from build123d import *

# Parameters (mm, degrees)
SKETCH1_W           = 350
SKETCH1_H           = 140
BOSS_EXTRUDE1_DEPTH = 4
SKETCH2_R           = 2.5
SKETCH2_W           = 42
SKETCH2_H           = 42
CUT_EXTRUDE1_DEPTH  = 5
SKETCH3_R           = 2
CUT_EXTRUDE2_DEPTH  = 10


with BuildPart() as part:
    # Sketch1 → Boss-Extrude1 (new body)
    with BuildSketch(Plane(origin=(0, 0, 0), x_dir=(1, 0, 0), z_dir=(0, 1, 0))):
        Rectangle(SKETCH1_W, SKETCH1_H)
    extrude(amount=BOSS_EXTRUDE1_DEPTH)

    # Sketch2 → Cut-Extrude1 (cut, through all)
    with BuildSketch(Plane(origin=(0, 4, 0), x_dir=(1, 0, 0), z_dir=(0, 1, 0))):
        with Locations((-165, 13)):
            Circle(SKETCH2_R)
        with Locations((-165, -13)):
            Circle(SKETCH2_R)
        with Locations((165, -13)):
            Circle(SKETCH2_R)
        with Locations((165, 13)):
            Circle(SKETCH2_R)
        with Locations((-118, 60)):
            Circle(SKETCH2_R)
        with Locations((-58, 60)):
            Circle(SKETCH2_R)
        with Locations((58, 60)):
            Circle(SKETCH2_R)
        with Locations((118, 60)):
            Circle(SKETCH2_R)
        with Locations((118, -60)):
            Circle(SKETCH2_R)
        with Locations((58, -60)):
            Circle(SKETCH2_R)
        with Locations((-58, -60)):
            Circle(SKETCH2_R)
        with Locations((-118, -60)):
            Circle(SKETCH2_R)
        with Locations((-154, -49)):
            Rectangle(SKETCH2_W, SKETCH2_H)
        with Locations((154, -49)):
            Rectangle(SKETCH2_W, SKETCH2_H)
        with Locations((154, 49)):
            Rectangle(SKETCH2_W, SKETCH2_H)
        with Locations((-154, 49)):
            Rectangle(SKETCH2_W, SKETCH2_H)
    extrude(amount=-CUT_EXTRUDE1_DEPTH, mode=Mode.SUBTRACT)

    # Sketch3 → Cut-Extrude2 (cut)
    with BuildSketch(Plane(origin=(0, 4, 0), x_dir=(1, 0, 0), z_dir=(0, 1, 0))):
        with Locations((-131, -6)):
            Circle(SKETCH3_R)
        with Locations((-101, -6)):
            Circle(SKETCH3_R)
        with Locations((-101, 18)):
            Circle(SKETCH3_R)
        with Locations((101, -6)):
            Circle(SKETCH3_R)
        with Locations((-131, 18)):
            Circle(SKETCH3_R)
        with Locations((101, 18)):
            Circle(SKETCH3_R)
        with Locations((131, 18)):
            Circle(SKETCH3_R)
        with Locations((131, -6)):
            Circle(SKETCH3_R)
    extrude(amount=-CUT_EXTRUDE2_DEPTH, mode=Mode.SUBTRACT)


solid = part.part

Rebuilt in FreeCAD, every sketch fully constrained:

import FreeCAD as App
import Part
import Sketcher


def add_polygon(sketch, points):
    """Adds a closed chain of lines whose ends are joined by coincident constraints."""
    first, n = sketch.GeometryCount, len(points)
    for a, b in zip(points, points[1:] + points[:1]):
        sketch.addGeometry(Part.LineSegment(App.Vector(*a, 0), App.Vector(*b, 0)), False)
    for i in range(n):
        sketch.addConstraint(Sketcher.Constraint("Coincident", first + i, 2, first + (i + 1) % n, 1))

doc = App.newDocument("Part")
params = doc.addObject("Spreadsheet::Sheet", "Params")
for row, (alias, value) in enumerate([
    ("sketch1_width", "350 mm"),
    ("sketch1_height", "140 mm"),
    ("pad1_length", "4 mm"),
    ("sketch2_diameter", "5 mm"),
    ("sketch2_width", "42 mm"),
    ("sketch3_diameter", "4 mm"),
    ("pocket2_length", "10 mm"),
], start=1):
    params.set(f"A{row}", alias)
    params.set(f"B{row}", "=" + value)
    params.setAlias(f"B{row}", alias)

body = doc.addObject("PartDesign::Body", "Body")

# Sketch on XZ plane
sketch1 = body.newObject("Sketcher::SketchObject", "Sketch")
sketch1.AttachmentSupport = (doc.getObject("XZ_Plane"), [""])
sketch1.MapMode = "FlatFace"
add_polygon(sketch1, [(-175, -70), (-175, 70), (175, 70), (175, -70)])  # lines 0-3
sketch1.addConstraint(Sketcher.Constraint("Vertical", 0))
sketch1.addConstraint(Sketcher.Constraint("Horizontal", 1))
sketch1.addConstraint(Sketcher.Constraint("Vertical", 2))
sketch1.addConstraint(Sketcher.Constraint("Horizontal", 3))
sketch1.addConstraint(Sketcher.Constraint("Symmetric", 0, 2, 2, 2, -1, 1))
sketch1.addConstraint(Sketcher.Constraint("DistanceX", 1, 1, 1, 2, 350.0))
sketch1.addConstraint(Sketcher.Constraint("DistanceY", 0, 1, 0, 2, 140.0))
sketch1.setExpression("Constraints[9]", "Params.sketch1_width")
sketch1.setExpression("Constraints[10]", "Params.sketch1_height")
pad1 = body.newObject("PartDesign::Pad", "Pad")
pad1.Profile = sketch1
pad1.setExpression("Length", "Params.pad1_length")
pad1.Reversed = True

# Sketch on XZ plane
sketch2 = body.newObject("Sketcher::SketchObject", "Sketch001")
sketch2.AttachmentSupport = (doc.getObject("XZ_Plane"), [""])
sketch2.MapMode = "FlatFace"
sketch2.AttachmentOffset = App.Placement(App.Vector(0, 0, -4), App.Rotation())
sketch2.addGeometry(Part.Circle(App.Vector(-165, -13, 0), App.Vector(0, 0, 1), 2.5), False)  # 0
sketch2.addGeometry(Part.Circle(App.Vector(-165, 13, 0), App.Vector(0, 0, 1), 2.5), False)  # 1
sketch2.addGeometry(Part.Circle(App.Vector(165, 13, 0), App.Vector(0, 0, 1), 2.5), False)  # 2
sketch2.addGeometry(Part.Circle(App.Vector(165, -13, 0), App.Vector(0, 0, 1), 2.5), False)  # 3
sketch2.addGeometry(Part.Circle(App.Vector(-118, -60, 0), App.Vector(0, 0, 1), 2.5), False)  # 4
sketch2.addGeometry(Part.Circle(App.Vector(-58, -60, 0), App.Vector(0, 0, 1), 2.5), False)  # 5
sketch2.addGeometry(Part.Circle(App.Vector(58, -60, 0), App.Vector(0, 0, 1), 2.5), False)  # 6
sketch2.addGeometry(Part.Circle(App.Vector(118, -60, 0), App.Vector(0, 0, 1), 2.5), False)  # 7
sketch2.addGeometry(Part.Circle(App.Vector(118, 60, 0), App.Vector(0, 0, 1), 2.5), False)  # 8
sketch2.addGeometry(Part.Circle(App.Vector(58, 60, 0), App.Vector(0, 0, 1), 2.5), False)  # 9
sketch2.addGeometry(Part.Circle(App.Vector(-58, 60, 0), App.Vector(0, 0, 1), 2.5), False)  # 10
sketch2.addGeometry(Part.Circle(App.Vector(-118, 60, 0), App.Vector(0, 0, 1), 2.5), False)  # 11
add_polygon(sketch2, [(-175, 28), (-175, 70), (-133, 70), (-133, 28)])  # lines 12-15
add_polygon(sketch2, [(133, 28), (133, 70), (175, 70), (175, 28)])  # lines 16-19
add_polygon(sketch2, [(133, -70), (133, -28), (175, -28), (175, -70)])  # lines 20-23
add_polygon(sketch2, [(-175, -70), (-175, -28), (-133, -28), (-133, -70)])  # lines 24-27
sketch2.addConstraint(Sketcher.Constraint("Vertical", 12))
sketch2.addConstraint(Sketcher.Constraint("Horizontal", 13))
sketch2.addConstraint(Sketcher.Constraint("Vertical", 14))
sketch2.addConstraint(Sketcher.Constraint("Horizontal", 15))
sketch2.addConstraint(Sketcher.Constraint("Vertical", 16))
sketch2.addConstraint(Sketcher.Constraint("Horizontal", 17))
sketch2.addConstraint(Sketcher.Constraint("Vertical", 18))
sketch2.addConstraint(Sketcher.Constraint("Horizontal", 19))
sketch2.addConstraint(Sketcher.Constraint("Vertical", 20))
sketch2.addConstraint(Sketcher.Constraint("Horizontal", 21))
sketch2.addConstraint(Sketcher.Constraint("Vertical", 22))
sketch2.addConstraint(Sketcher.Constraint("Horizontal", 23))
sketch2.addConstraint(Sketcher.Constraint("Vertical", 24))
sketch2.addConstraint(Sketcher.Constraint("Horizontal", 25))
sketch2.addConstraint(Sketcher.Constraint("Vertical", 26))
sketch2.addConstraint(Sketcher.Constraint("Horizontal", 27))
sketch2.addConstraint(Sketcher.Constraint("Equal", 0, 1))
sketch2.addConstraint(Sketcher.Constraint("Equal", 1, 2))
sketch2.addConstraint(Sketcher.Constraint("Equal", 2, 3))
sketch2.addConstraint(Sketcher.Constraint("Equal", 3, 4))
sketch2.addConstraint(Sketcher.Constraint("Equal", 4, 5))
sketch2.addConstraint(Sketcher.Constraint("Equal", 5, 6))
sketch2.addConstraint(Sketcher.Constraint("Equal", 6, 7))
sketch2.addConstraint(Sketcher.Constraint("Equal", 7, 8))
sketch2.addConstraint(Sketcher.Constraint("Equal", 8, 9))
sketch2.addConstraint(Sketcher.Constraint("Equal", 9, 10))
sketch2.addConstraint(Sketcher.Constraint("Equal", 10, 11))
sketch2.addConstraint(Sketcher.Constraint("Symmetric", 0, 3, 2, 3, -1, 1))
sketch2.addConstraint(Sketcher.Constraint("Symmetric", 1, 3, 3, 3, -1, 1))
sketch2.addConstraint(Sketcher.Constraint("Symmetric", 4, 3, 8, 3, -1, 1))
sketch2.addConstraint(Sketcher.Constraint("Symmetric", 5, 3, 9, 3, -1, 1))
sketch2.addConstraint(Sketcher.Constraint("Symmetric", 6, 3, 10, 3, -1, 1))
sketch2.addConstraint(Sketcher.Constraint("Symmetric", 7, 3, 11, 3, -1, 1))
sketch2.addConstraint(Sketcher.Constraint("Symmetric", 14, 2, 20, 2, -1, 1))
sketch2.addConstraint(Sketcher.Constraint("Symmetric", 12, 2, 22, 2, -1, 1))
sketch2.addConstraint(Sketcher.Constraint("Symmetric", 18, 2, 24, 2, -1, 1))
sketch2.addConstraint(Sketcher.Constraint("Symmetric", 16, 2, 26, 2, -1, 1))
sketch2.addConstraint(Sketcher.Constraint("Symmetric", 1, 3, 2, 3, -2))
sketch2.addConstraint(Sketcher.Constraint("Symmetric", 5, 3, 6, 3, -2))
sketch2.addConstraint(Sketcher.Constraint("Symmetric", 4, 3, 7, 3, -2))
sketch2.addConstraint(Sketcher.Constraint("Symmetric", 13, 2, 16, 2, -2))
sketch2.addConstraint(Sketcher.Constraint("Symmetric", 15, 2, 18, 2, -2))
sketch2.addConstraint(Sketcher.Constraint("Horizontal", 4, 3, 5, 3))
sketch2.addConstraint(Sketcher.Constraint("Equal", 27, 12))
sketch2.addConstraint(Sketcher.Constraint("Diameter", 0, 5.0))
sketch2.addConstraint(Sketcher.Constraint("DistanceX", 13, 1, 13, 2, 42.0))
sketch2.addConstraint(Sketcher.Constraint("DistanceX", 0, 3, -1, 1, 165.0))
sketch2.addConstraint(Sketcher.Constraint("DistanceY", 0, 3, -1, 1, 13.0))
sketch2.addConstraint(Sketcher.Constraint("DistanceX", 4, 3, -1, 1, 118.0))
sketch2.addConstraint(Sketcher.Constraint("DistanceY", 4, 3, -1, 1, 60.0))
sketch2.addConstraint(Sketcher.Constraint("DistanceX", 5, 3, -1, 1, 58.0))
sketch2.addConstraint(Sketcher.Constraint("DistanceX", 12, 2, -1, 1, 175.0))
sketch2.addConstraint(Sketcher.Constraint("DistanceY", -1, 1, 12, 2, 70.0))
sketch2.setExpression("Constraints[60]", "Params.sketch2_diameter")
sketch2.setExpression("Constraints[61]", "Params.sketch2_width")
pocket1 = body.newObject("PartDesign::Pocket", "Pocket")
pocket1.Profile = sketch2
pocket1.Type = "ThroughAll"
pocket1.Reversed = True

# Sketch on XZ plane
sketch3 = body.newObject("Sketcher::SketchObject", "Sketch002")
sketch3.AttachmentSupport = (doc.getObject("XZ_Plane"), [""])
sketch3.MapMode = "FlatFace"
sketch3.AttachmentOffset = App.Placement(App.Vector(0, 0, -4), App.Rotation())
sketch3.addGeometry(Part.Circle(App.Vector(-131, 6, 0), App.Vector(0, 0, 1), 2), False)
sketch3.addGeometry(Part.Circle(App.Vector(-101, 6, 0), App.Vector(0, 0, 1), 2), False)
sketch3.addGeometry(Part.Circle(App.Vector(-101, -18, 0), App.Vector(0, 0, 1), 2), False)
sketch3.addGeometry(Part.Circle(App.Vector(101, 6, 0), App.Vector(0, 0, 1), 2), False)
sketch3.addGeometry(Part.Circle(App.Vector(-131, -18, 0), App.Vector(0, 0, 1), 2), False)
sketch3.addGeometry(Part.Circle(App.Vector(101, -18, 0), App.Vector(0, 0, 1), 2), False)
sketch3.addGeometry(Part.Circle(App.Vector(131, -18, 0), App.Vector(0, 0, 1), 2), False)
sketch3.addGeometry(Part.Circle(App.Vector(131, 6, 0), App.Vector(0, 0, 1), 2), False)
sketch3.addConstraint(Sketcher.Constraint("Equal", 0, 1))
sketch3.addConstraint(Sketcher.Constraint("Equal", 1, 2))
sketch3.addConstraint(Sketcher.Constraint("Equal", 2, 3))
sketch3.addConstraint(Sketcher.Constraint("Equal", 3, 4))
sketch3.addConstraint(Sketcher.Constraint("Equal", 4, 5))
sketch3.addConstraint(Sketcher.Constraint("Equal", 5, 6))
sketch3.addConstraint(Sketcher.Constraint("Equal", 6, 7))
sketch3.addConstraint(Sketcher.Constraint("Symmetric", 1, 3, 3, 3, -2))
sketch3.addConstraint(Sketcher.Constraint("Symmetric", 2, 3, 5, 3, -2))
sketch3.addConstraint(Sketcher.Constraint("Symmetric", 4, 3, 6, 3, -2))
sketch3.addConstraint(Sketcher.Constraint("Symmetric", 0, 3, 7, 3, -2))
sketch3.addConstraint(Sketcher.Constraint("Horizontal", 0, 3, 1, 3))
sketch3.addConstraint(Sketcher.Constraint("Horizontal", 2, 3, 4, 3))
sketch3.addConstraint(Sketcher.Constraint("Vertical", 1, 3, 2, 3))
sketch3.addConstraint(Sketcher.Constraint("Vertical", 0, 3, 4, 3))
sketch3.addConstraint(Sketcher.Constraint("Diameter", 0, 4.0))
sketch3.addConstraint(Sketcher.Constraint("DistanceX", 0, 3, -1, 1, 131.0))
sketch3.addConstraint(Sketcher.Constraint("DistanceY", -1, 1, 0, 3, 6.0))
sketch3.addConstraint(Sketcher.Constraint("DistanceX", 1, 3, -1, 1, 101.0))
sketch3.addConstraint(Sketcher.Constraint("DistanceY", 2, 3, -1, 1, 18.0))
sketch3.setExpression("Constraints[15]", "Params.sketch3_diameter")
pocket2 = body.newObject("PartDesign::Pocket", "Pocket001")
pocket2.Profile = sketch3
pocket2.setExpression("Length", "Params.pocket2_length")
pocket2.Reversed = True

doc.recompute()
